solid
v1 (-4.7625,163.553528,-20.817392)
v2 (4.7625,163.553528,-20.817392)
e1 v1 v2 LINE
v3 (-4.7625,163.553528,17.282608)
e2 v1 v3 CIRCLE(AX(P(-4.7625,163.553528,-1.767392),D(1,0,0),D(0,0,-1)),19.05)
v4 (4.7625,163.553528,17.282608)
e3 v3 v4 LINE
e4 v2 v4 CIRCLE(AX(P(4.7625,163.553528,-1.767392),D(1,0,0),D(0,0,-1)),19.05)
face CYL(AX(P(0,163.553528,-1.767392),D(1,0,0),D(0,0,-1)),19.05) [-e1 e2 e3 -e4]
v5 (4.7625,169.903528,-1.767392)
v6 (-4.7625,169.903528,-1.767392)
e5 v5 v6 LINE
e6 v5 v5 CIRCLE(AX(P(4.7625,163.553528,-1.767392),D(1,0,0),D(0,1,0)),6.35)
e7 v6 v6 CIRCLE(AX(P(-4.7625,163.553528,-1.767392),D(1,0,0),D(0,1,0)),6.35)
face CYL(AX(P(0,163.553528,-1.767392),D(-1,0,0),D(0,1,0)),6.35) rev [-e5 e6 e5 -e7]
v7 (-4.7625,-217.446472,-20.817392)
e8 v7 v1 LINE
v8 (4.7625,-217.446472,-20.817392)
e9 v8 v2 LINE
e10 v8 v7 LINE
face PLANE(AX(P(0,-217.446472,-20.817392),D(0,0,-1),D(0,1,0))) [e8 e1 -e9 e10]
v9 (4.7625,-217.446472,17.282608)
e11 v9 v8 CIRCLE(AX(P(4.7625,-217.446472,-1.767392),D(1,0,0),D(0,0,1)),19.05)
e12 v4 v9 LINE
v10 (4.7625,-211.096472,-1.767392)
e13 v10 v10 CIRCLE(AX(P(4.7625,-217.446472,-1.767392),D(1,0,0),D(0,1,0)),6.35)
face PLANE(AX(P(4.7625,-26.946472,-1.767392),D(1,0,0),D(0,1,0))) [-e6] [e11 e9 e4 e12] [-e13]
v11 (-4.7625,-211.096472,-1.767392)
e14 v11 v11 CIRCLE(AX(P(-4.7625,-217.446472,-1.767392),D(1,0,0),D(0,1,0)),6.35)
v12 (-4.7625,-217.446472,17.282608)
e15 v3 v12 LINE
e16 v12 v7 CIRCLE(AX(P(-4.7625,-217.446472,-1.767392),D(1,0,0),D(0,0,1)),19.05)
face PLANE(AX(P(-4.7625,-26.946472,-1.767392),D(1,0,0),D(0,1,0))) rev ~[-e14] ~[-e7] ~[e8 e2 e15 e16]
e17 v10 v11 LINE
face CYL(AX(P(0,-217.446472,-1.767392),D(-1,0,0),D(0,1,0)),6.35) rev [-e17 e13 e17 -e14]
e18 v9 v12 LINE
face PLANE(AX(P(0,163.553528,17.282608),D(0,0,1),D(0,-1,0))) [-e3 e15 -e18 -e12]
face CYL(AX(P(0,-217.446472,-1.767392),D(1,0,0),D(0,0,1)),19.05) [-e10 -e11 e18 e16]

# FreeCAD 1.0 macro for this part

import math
import FreeCAD as App
import Part
import Sketcher
Q = App.Units.Quantity

doc = App.newDocument("Part")
body = doc.addObject("PartDesign::Body", "Body")

# Sketch on YZ plane
sketch1 = body.newObject("Sketcher::SketchObject", "Sketch")
sketch1.AttachmentSupport = (doc.getObject("YZ_Plane"), [""])
sketch1.MapMode = "FlatFace"
sketch1.addGeometry(Part.LineSegment(App.Vector(-217.446472, -20.817392, 0), App.Vector(163.553528, -20.817392, 0)), False)
sketch1.addGeometry(Part.ArcOfCircle(Part.Circle(App.Vector(163.553528, -1.767392, 0), App.Vector(0, 0, 1), 19.05), math.radians(-90), math.radians(90)), False)
sketch1.addGeometry(Part.LineSegment(App.Vector(163.553528, 17.282608, 0), App.Vector(-217.446472, 17.282608, 0)), False)
sketch1.addGeometry(Part.ArcOfCircle(Part.Circle(App.Vector(-217.446472, -1.767392, 0), App.Vector(0, 0, 1), 19.05), math.radians(90), math.radians(270)), False)
sketch1.addGeometry(Part.Circle(App.Vector(-217.446472, -1.767392, 0), App.Vector(0, 0, 1), 6.35), False)
sketch1.addGeometry(Part.Circle(App.Vector(163.553528, -1.767392, 0), App.Vector(0, 0, 1), 6.35), False)
sketch1.addConstraint(Sketcher.Constraint("Tangent", 0, 2, 1, 1))
sketch1.addConstraint(Sketcher.Constraint("Tangent", 1, 2, 2, 1))
sketch1.addConstraint(Sketcher.Constraint("Tangent", 2, 2, 3, 1))
sketch1.addConstraint(Sketcher.Constraint("Tangent", 3, 2, 0, 1))
sketch1.addConstraint(Sketcher.Constraint("Horizontal", 0))
sketch1.addConstraint(Sketcher.Constraint("Horizontal", 2))
sketch1.addConstraint(Sketcher.Constraint("Coincident", 4, 3, 3, 3))
sketch1.addConstraint(Sketcher.Constraint("Coincident", 5, 3, 1, 3))
sketch1.addConstraint(Sketcher.Constraint("Equal", 4, 5))
sketch1.addConstraint(Sketcher.Constraint("Diameter", 4, Q("0.5 in")))
sketch1.addConstraint(Sketcher.Constraint("DistanceX", 0, 1, 0, 2, Q("15 in")))
sketch1.addConstraint(Sketcher.Constraint("Radius", 1, Q("0.75 in")))
sketch1.addConstraint(Sketcher.Constraint("DistanceX", -1, 1, 1, 3, 163.553528))
sketch1.addConstraint(Sketcher.Constraint("DistanceY", -1, 1, 1, 2, 17.282608))
pad1 = body.newObject("PartDesign::Pad", "Pad")
pad1.Profile = sketch1
pad1.Length = Q("0.375 in")
pad1.Midplane = True

doc.recompute()
